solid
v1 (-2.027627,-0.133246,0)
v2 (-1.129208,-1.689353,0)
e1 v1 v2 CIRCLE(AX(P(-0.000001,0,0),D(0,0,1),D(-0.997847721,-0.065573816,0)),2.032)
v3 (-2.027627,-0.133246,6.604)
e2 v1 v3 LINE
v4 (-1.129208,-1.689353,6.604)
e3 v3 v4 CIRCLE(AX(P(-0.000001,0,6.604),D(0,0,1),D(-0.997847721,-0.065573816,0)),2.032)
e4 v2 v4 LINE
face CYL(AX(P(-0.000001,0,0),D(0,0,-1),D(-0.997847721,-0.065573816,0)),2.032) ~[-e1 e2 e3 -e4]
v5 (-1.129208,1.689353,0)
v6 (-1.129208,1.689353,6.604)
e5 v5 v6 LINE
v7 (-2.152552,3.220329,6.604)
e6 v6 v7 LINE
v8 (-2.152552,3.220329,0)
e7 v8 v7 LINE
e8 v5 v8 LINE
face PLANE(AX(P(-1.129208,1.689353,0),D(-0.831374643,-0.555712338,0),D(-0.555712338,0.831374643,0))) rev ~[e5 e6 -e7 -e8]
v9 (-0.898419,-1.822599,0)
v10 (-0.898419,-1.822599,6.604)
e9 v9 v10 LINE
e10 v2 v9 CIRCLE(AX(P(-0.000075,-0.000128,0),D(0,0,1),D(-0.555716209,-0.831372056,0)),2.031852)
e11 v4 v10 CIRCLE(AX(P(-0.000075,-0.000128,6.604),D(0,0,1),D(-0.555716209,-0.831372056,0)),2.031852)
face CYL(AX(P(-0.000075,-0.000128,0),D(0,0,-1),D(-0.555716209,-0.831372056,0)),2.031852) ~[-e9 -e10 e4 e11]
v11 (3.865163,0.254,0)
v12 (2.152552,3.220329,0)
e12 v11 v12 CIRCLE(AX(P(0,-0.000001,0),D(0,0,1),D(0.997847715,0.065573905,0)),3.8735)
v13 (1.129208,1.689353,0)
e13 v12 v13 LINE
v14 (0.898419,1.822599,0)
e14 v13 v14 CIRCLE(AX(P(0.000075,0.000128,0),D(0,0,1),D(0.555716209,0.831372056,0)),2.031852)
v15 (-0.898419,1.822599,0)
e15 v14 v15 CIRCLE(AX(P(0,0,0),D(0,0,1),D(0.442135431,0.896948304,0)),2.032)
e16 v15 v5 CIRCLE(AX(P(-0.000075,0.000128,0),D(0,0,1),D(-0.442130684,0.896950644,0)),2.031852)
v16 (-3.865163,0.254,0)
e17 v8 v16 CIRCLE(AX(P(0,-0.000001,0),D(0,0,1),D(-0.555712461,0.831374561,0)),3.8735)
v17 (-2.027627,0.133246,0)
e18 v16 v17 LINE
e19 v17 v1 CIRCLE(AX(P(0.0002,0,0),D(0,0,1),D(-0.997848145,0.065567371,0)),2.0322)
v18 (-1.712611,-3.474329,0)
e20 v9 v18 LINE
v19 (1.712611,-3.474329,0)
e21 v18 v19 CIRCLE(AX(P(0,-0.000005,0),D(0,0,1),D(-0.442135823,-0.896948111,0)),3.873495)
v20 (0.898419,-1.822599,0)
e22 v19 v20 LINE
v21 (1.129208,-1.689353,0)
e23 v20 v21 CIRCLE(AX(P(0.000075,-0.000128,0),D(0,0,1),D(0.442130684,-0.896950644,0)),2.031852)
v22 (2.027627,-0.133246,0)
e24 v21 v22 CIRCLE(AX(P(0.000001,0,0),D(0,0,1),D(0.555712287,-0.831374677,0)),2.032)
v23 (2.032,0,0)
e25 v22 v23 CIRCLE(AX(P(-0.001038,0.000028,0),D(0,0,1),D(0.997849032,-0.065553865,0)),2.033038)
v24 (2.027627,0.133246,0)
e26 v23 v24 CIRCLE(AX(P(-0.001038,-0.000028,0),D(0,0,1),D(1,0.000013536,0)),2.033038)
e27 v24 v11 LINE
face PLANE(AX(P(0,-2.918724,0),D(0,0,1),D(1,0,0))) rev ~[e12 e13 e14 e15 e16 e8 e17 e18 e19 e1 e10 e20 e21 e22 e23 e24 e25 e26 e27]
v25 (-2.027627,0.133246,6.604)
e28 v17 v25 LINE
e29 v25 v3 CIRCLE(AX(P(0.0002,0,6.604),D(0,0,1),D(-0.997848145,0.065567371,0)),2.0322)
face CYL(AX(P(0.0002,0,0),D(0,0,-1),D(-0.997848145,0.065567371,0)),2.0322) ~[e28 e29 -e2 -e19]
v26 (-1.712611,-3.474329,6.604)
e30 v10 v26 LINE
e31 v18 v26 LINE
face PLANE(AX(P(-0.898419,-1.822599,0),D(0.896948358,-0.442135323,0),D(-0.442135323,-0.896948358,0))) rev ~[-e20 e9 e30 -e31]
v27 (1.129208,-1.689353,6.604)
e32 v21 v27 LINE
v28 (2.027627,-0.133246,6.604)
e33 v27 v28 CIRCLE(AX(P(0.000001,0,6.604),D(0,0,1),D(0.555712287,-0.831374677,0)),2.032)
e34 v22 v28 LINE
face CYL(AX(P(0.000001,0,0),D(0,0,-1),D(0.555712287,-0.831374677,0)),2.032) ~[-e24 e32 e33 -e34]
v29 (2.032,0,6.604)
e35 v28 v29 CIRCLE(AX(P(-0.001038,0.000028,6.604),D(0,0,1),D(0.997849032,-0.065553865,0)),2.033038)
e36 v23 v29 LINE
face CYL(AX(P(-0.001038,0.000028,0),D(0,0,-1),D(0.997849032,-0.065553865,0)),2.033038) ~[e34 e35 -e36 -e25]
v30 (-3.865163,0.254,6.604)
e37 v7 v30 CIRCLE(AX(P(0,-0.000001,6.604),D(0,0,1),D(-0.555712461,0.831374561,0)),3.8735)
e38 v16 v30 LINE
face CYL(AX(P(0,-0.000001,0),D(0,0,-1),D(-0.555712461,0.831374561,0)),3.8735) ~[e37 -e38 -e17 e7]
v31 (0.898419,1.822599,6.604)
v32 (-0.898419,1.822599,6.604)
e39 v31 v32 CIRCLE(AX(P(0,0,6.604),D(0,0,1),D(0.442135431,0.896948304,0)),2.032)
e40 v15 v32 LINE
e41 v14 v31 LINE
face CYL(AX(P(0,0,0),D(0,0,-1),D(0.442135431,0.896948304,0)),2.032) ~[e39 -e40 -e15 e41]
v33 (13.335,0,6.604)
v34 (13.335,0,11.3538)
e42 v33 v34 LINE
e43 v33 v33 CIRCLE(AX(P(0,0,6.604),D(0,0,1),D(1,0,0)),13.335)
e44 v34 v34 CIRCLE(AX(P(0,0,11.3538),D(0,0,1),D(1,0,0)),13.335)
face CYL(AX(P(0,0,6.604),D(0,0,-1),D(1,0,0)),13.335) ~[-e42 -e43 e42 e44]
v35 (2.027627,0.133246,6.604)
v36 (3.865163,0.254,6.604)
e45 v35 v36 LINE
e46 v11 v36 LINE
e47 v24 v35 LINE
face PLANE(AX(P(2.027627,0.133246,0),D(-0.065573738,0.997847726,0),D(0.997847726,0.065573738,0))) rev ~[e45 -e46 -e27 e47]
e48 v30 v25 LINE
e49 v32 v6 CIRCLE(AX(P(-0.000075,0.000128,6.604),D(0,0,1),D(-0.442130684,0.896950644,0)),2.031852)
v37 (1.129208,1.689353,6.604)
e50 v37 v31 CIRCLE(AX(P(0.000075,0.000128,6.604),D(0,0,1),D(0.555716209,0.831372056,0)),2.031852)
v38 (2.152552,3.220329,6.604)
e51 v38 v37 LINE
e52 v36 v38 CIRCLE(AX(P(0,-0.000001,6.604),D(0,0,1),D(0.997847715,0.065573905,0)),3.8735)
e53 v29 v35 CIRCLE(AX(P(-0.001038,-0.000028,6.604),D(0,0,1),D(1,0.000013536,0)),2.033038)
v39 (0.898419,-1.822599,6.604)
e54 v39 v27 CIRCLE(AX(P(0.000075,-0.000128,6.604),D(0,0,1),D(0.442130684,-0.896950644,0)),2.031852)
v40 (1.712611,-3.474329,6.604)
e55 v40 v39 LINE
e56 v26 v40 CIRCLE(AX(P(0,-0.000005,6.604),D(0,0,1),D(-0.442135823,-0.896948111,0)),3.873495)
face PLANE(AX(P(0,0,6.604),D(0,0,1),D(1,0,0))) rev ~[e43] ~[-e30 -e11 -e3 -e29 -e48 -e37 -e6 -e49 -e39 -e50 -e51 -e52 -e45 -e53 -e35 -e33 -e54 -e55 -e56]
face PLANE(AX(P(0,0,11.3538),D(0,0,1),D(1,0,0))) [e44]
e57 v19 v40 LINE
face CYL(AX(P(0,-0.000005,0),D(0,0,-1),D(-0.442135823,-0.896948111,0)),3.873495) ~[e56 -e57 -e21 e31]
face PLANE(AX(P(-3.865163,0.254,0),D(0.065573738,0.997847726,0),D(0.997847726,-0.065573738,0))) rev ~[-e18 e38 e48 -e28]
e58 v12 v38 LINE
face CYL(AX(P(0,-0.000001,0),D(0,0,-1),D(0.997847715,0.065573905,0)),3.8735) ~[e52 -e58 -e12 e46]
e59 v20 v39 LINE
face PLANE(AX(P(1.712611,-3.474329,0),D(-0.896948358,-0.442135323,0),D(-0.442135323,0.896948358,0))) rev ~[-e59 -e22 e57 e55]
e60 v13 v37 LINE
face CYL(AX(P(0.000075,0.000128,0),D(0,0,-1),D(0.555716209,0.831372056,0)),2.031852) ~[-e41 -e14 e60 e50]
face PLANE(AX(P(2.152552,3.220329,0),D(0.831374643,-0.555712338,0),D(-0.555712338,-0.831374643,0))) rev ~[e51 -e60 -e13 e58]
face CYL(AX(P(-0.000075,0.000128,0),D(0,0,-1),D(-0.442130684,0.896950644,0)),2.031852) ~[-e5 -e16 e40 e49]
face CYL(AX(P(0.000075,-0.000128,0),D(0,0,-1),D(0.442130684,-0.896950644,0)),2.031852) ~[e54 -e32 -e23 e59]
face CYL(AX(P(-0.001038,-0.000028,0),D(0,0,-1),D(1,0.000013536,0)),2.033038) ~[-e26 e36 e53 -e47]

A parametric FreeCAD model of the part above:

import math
import FreeCAD as App
import Part
import Sketcher
from FreeCAD import Vector
Q = App.Units.Quantity

doc = App.newDocument("Part")
body = doc.addObject("PartDesign::Body", "Body")

# Sketch on XY plane
sketch1 = body.newObject("Sketcher::SketchObject", "Sketch")
sketch1.AttachmentSupport = (doc.getObject("XY_Plane"), [""])
sketch1.MapMode = "FlatFace"
sketch1.addGeometry([
    Part.ArcOfCircle(Part.Circle(Vector(0, -0.000005, 0), Vector(0, 0, 1), 3.873495), math.radians(-116.240235), math.radians(-63.759765)),  # 0
    Part.LineSegment(Vector(1.712611, -3.474329, 0), Vector(0.898419, -1.822599, 0)),  # 1
    Part.ArcOfCircle(Part.Circle(Vector(0.000075, -0.000128, 0), Vector(0, 0, 1), 2.031852), math.radians(-63.760094), math.radians(-56.23994)),  # 2
    Part.ArcOfCircle(Part.Circle(Vector(0.000001, 0, 0), Vector(0, 0, 1), 2.032), math.radians(-56.240211), math.radians(-3.759801)),  # 3
    Part.ArcOfCircle(Part.Circle(Vector(-0.001038, 0.000028, 0), Vector(0, 0, 1), 2.033038), math.radians(-3.758655), math.radians(-0.000776)),  # 4
    Part.ArcOfCircle(Part.Circle(Vector(-0.001038, -0.000028, 0), Vector(0, 0, 1), 2.033038), math.radians(0.000776), math.radians(3.758655)),  # 5
    Part.LineSegment(Vector(2.027627, 0.133246, 0), Vector(3.865163, 0.254, 0)),  # 6
    Part.ArcOfCircle(Part.Circle(Vector(0, -0.000001, 0), Vector(0, 0, 1), 3.8735), math.radians(3.759806), math.radians(56.240199)),  # 7
    Part.LineSegment(Vector(2.152552, 3.220329, 0), Vector(1.129208, 1.689353, 0)),  # 8
    Part.ArcOfCircle(Part.Circle(Vector(0.000075, 0.000128, 0), Vector(0, 0, 1), 2.031852), math.radians(56.23994), math.radians(63.760094)),  # 9
    Part.ArcOfCircle(Part.Circle(Vector(0, 0, 0), Vector(0, 0, 1), 2.032), math.radians(63.75979), math.radians(116.24021)),  # 10
    Part.ArcOfCircle(Part.Circle(Vector(-0.000075, 0.000128, 0), Vector(0, 0, 1), 2.031852), math.radians(116.239906), math.radians(123.76006)),  # 11
    Part.LineSegment(Vector(-1.129208, 1.689353, 0), Vector(-2.152552, 3.220329, 0)),  # 12
    Part.ArcOfCircle(Part.Circle(Vector(0, -0.000001, 0), Vector(0, 0, 1), 3.8735), math.radians(123.759801), math.radians(176.240194)),  # 13
    Part.LineSegment(Vector(-3.865163, 0.254, 0), Vector(-2.027627, 0.133246, 0)),  # 14
    Part.ArcOfCircle(Part.Circle(Vector(0.0002, 0, 0), Vector(0, 0, 1), 2.0322), math.radians(176.240569), math.radians(183.759431)),  # 15
    Part.ArcOfCircle(Part.Circle(Vector(-0.000001, 0, 0), Vector(0, 0, 1), 2.032), math.radians(-176.240199), math.radians(-123.759789)),  # 16
    Part.ArcOfCircle(Part.Circle(Vector(-0.000075, -0.000128, 0), Vector(0, 0, 1), 2.031852), math.radians(-123.76006), math.radians(-116.239906)),  # 17
    Part.LineSegment(Vector(-0.898419, -1.822599, 0), Vector(-1.712611, -3.474329, 0)),  # 18
], False)
sketch1.addConstraint([
    Sketcher.Constraint("Coincident", 0, 2, 1, 1),
    Sketcher.Constraint("Coincident", 1, 2, 2, 1),
    Sketcher.Constraint("Coincident", 2, 2, 3, 1),
    Sketcher.Constraint("Coincident", 3, 2, 4, 1),
    Sketcher.Constraint("Coincident", 4, 2, 5, 1),
    Sketcher.Constraint("Coincident", 5, 2, 6, 1),
    Sketcher.Constraint("Coincident", 6, 2, 7, 1),
    Sketcher.Constraint("Coincident", 7, 2, 8, 1),
    Sketcher.Constraint("Coincident", 8, 2, 9, 1),
    Sketcher.Constraint("Coincident", 9, 2, 10, 1),
    Sketcher.Constraint("Coincident", 10, 2, 11, 1),
    Sketcher.Constraint("Coincident", 11, 2, 12, 1),
    Sketcher.Constraint("Coincident", 12, 2, 13, 1),
    Sketcher.Constraint("Coincident", 13, 2, 14, 1),
    Sketcher.Constraint("Coincident", 14, 2, 15, 1),
    Sketcher.Constraint("Coincident", 15, 2, 16, 1),
    Sketcher.Constraint("Coincident", 16, 2, 17, 1),
    Sketcher.Constraint("Coincident", 17, 2, 18, 1),
    Sketcher.Constraint("Coincident", 18, 2, 0, 1),
    Sketcher.Constraint("Coincident", 0, 3, -1, 1),
    Sketcher.Constraint("Coincident", 3, 3, -1, 1),
    Sketcher.Constraint("Coincident", 7, 3, -1, 1),
    Sketcher.Constraint("Coincident", 10, 3, -1, 1),
    Sketcher.Constraint("Coincident", 13, 3, -1, 1),
    Sketcher.Constraint("Coincident", 16, 3, -1, 1),
    Sketcher.Constraint("Equal", 4, 5),
    Sketcher.Constraint("Equal", 2, 9),
    Sketcher.Constraint("Equal", 3, 10),
    Sketcher.Constraint("Equal", 9, 11),
    Sketcher.Constraint("Equal", 7, 13),
    Sketcher.Constraint("Equal", 10, 16),
    Sketcher.Constraint("Equal", 11, 17),
    Sketcher.Constraint("Symmetric", 2, 3, 11, 3, -1, 1),
    Sketcher.Constraint("Symmetric", 9, 3, 17, 3, -1, 1),
    Sketcher.Constraint("Symmetric", 3, 2, 14, 2, -1, 1),
    Sketcher.Constraint("Symmetric", 5, 2, 15, 2, -1, 1),
    Sketcher.Constraint("PointOnObject", 4, 2, -1),
    Sketcher.Constraint("Horizontal", 9, 2, 10, 2),
    Sketcher.Constraint("Horizontal", 8, 2, 11, 2),
    Sketcher.Constraint("Horizontal", 7, 2, 12, 2),
    Sketcher.Constraint("Horizontal", 6, 2, 13, 2),
    Sketcher.Constraint("Horizontal", 5, 2, 14, 2),
    Sketcher.Constraint("Horizontal", 2, 2, 16, 2),
    Sketcher.Constraint("Horizontal", 1, 2, 17, 2),
    Sketcher.Constraint("Horizontal", 0, 2, 18, 2),
    Sketcher.Constraint("Vertical", 2, 2, 8, 2),
    Sketcher.Constraint("Vertical", 1, 2, 9, 2),
    Sketcher.Constraint("Equal", 1, 6),
    Sketcher.Constraint("Radius", 3, Q("0.08 in")),
    Sketcher.Constraint("Radius", 0, Q("0.1524998 in")),
    Sketcher.Constraint("DistanceX", -1, 1, 4, 2, Q("0.08 in")),
    Sketcher.Constraint("DistanceY", -1, 1, 6, 2, Q("0.01 in")),
    Sketcher.Constraint("Radius", 15, Q("2.0322 mm")),
    Sketcher.Constraint("Radius", 4, Q("2.033038 mm")),
    Sketcher.Constraint("Radius", 2, Q("2.031852 mm")),
    Sketcher.Constraint("DistanceY", 1, 2, -1, 1, Q("1.822599 mm")),
    Sketcher.Constraint("DistanceY", 0, 2, 2, 3, Q("3.474201 mm")),
    Sketcher.Constraint("DistanceY", 9, 3, 7, 2, Q("3.220201 mm")),
    Sketcher.Constraint("DistanceX", 1, 2, 2, 2, Q("0.230789 mm")),
    Sketcher.Constraint("DistanceX", 2, 2, 3, 2, Q("0.898419 mm")),
])
pad1 = body.newObject("PartDesign::Pad", "Pad")
pad1.Profile = sketch1
pad1.Length = Q("0.26 in")

# Sketch on XY plane
sketch2 = body.newObject("Sketcher::SketchObject", "Sketch001")
sketch2.AttachmentSupport = (doc.getObject("XY_Plane"), [""])
sketch2.MapMode = "FlatFace"
sketch2.AttachmentOffset = App.Placement(Vector(0, 0, 0.26 * 25.4), App.Rotation())
sketch2.addGeometry(Part.Circle(Vector(0, 0, 0), Vector(0, 0, 1), 13), False)
sketch2.addConstraint([
    Sketcher.Constraint("Coincident", 0, 3, -1, 1),
    Sketcher.Constraint("Diameter", 0, Q("1.05 in")),
])
pad2 = body.newObject("PartDesign::Pad", "Pad001")
pad2.Profile = sketch2
pad2.Length = Q("0.187 in")

doc.recompute()
